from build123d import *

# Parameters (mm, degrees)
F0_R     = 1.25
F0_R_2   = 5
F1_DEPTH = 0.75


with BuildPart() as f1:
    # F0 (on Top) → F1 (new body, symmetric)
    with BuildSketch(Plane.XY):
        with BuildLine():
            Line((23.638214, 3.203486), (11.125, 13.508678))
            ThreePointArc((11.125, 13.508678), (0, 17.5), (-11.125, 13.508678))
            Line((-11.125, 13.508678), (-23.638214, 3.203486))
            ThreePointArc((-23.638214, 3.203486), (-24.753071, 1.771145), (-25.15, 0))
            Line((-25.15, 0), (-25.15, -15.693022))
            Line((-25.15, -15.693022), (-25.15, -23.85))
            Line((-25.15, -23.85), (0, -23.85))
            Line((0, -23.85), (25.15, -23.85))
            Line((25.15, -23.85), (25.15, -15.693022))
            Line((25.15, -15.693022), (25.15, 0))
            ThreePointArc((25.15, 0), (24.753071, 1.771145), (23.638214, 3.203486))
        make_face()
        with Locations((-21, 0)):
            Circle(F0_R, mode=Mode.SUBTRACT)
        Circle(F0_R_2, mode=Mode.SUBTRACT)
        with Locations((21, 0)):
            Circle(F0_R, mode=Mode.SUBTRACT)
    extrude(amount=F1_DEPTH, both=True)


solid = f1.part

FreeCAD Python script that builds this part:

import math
import FreeCAD as App
import Part
import Sketcher
from FreeCAD import Vector

doc = App.newDocument("Part")
body = doc.addObject("PartDesign::Body", "Body")

# Sketch on XY plane
sketch1 = body.newObject("Sketcher::SketchObject", "Sketch")
sketch1.AttachmentSupport = (doc.getObject("XY_Plane"), [""])
sketch1.MapMode = "FlatFace"
sketch1.addGeometry([
    Part.LineSegment(Vector(23.6, 3.2, 0), Vector(11.1, 13.5, 0)),  # 0
    Part.ArcOfCircle(Part.Circle(Vector(0, 0, 0), Vector(0, 0, 1), 17.5), math.radians(51), math.radians(129)),  # 1
    Part.LineSegment(Vector(-11.1, 13.5, 0), Vector(-23.6, 3.2, 0)),  # 2
    Part.ArcOfCircle(Part.Circle(Vector(-21, 0, 0), Vector(0, 0, 1), 4.2), math.radians(129), math.radians(180)),  # 3
    Part.LineSegment(Vector(-25.1, 0, 0), Vector(-25.1, -23.9, 0)),  # 4
    Part.LineSegment(Vector(-25.1, -23.9, 0), Vector(25.1, -23.9, 0)),  # 5
    Part.LineSegment(Vector(25.1, -23.9, 0), Vector(25.1, 0, 0)),  # 6
    Part.ArcOfCircle(Part.Circle(Vector(21, 0, 0), Vector(0, 0, 1), 4.2), math.radians(0), math.radians(51)),  # 7
    Part.Circle(Vector(-21, 0, 0), Vector(0, 0, 1), 1.2),  # 8
    Part.Circle(Vector(0, 0, 0), Vector(0, 0, 1), 5),  # 9
    Part.Circle(Vector(21, 0, 0), Vector(0, 0, 1), 1.2),  # 10
], False)
sketch1.addConstraint([
    Sketcher.Constraint("Tangent", 0, 2, 1, 1),
    Sketcher.Constraint("Tangent", 1, 2, 2, 1),
    Sketcher.Constraint("Tangent", 2, 2, 3, 1),
    Sketcher.Constraint("Tangent", 3, 2, 4, 1),
    Sketcher.Constraint("Coincident", 4, 2, 5, 1),
    Sketcher.Constraint("Coincident", 5, 2, 6, 1),
    Sketcher.Constraint("Tangent", 6, 2, 7, 1),
    Sketcher.Constraint("Tangent", 7, 2, 0, 1),
    Sketcher.Constraint("Vertical", 4),
    Sketcher.Constraint("Horizontal", 5),
    Sketcher.Constraint("Vertical", 6),
    Sketcher.Constraint("Coincident", 1, 3, -1, 1),
    Sketcher.Constraint("Coincident", 9, 3, -1, 1),
    Sketcher.Constraint("Coincident", 8, 3, 3, 3),
    Sketcher.Constraint("Coincident", 10, 3, 7, 3),
    Sketcher.Constraint("Equal", 3, 7),
    Sketcher.Constraint("Equal", 8, 10),
    Sketcher.Constraint("Symmetric", 3, 3, 7, 3, -1, 1),
    Sketcher.Constraint("PointOnObject", 3, 3, -1),
    Sketcher.Constraint("Diameter", 9, 10.0),
    Sketcher.Constraint("Diameter", 8, 2.5),
    Sketcher.Constraint("Radius", 1, 17.500001),
    Sketcher.Constraint("Radius", 3, 4.150001),
    Sketcher.Constraint("DistanceX", 5, 1, 5, 2, 50.3),
    Sketcher.Constraint("DistanceY", 4, 2, 4, 1, 23.85),
])
pad1 = body.newObject("PartDesign::Pad", "Pad")
pad1.Profile = sketch1
pad1.Length = 1.5
pad1.Midplane = True

doc.recompute()
